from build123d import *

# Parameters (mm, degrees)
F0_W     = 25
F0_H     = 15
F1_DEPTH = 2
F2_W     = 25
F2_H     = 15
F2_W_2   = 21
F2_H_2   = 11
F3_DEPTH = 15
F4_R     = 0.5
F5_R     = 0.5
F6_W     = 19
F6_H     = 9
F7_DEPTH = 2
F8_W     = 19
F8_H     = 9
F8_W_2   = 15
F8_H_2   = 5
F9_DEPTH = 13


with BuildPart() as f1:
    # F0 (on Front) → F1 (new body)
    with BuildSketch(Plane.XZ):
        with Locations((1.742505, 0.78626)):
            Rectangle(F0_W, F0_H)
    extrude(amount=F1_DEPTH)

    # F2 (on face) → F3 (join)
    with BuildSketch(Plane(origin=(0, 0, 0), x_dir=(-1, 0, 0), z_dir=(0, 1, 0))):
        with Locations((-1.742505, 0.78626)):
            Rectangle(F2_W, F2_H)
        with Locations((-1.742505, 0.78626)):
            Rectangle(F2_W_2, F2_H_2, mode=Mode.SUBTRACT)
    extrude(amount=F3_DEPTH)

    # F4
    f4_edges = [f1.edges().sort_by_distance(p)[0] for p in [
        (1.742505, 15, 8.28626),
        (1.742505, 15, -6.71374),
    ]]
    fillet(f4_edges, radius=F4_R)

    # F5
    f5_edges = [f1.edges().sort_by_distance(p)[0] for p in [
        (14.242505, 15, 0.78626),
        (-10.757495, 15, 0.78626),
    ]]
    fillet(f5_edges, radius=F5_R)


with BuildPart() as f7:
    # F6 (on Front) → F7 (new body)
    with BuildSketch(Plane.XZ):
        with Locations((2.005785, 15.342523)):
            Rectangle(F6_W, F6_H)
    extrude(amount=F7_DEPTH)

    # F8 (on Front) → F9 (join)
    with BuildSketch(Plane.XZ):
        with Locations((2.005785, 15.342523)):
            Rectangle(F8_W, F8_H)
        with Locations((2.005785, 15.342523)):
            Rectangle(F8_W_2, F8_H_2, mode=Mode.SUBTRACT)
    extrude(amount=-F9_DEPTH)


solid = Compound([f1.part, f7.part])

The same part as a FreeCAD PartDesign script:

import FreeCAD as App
import Part
import Sketcher

V = App.Vector


def edges_at(feature, points):
    """Names of the edges that pass closest to the given points."""
    edges = feature.Shape.Edges
    near = lambda p: min(range(len(edges)), key=lambda i: edges[i].distToShape(Part.Vertex(*p))[0])
    return sorted({f"Edge{near(p) + 1}" for p in points})


def add_polygon(sketch, points):
    """Adds a closed chain of lines whose ends are joined by coincident constraints."""
    first, n = sketch.GeometryCount, len(points)
    for a, b in zip(points, points[1:] + points[:1]):
        sketch.addGeometry(Part.LineSegment(App.Vector(*a, 0), App.Vector(*b, 0)), False)
    for i in range(n):
        sketch.addConstraint(Sketcher.Constraint("Coincident", first + i, 2, first + (i + 1) % n, 1))

doc = App.newDocument("Part")
params = doc.addObject("Spreadsheet::Sheet", "Params")
for row, (alias, value) in enumerate([
    ("sketch1_width", "25 mm"),
    ("sketch1_height", "15 mm"),
    ("pad1_length", "2 mm"),
    ("sketch2_width", "25 mm"),
    ("sketch2_width2", "21 mm"),
    ("sketch2_height", "15 mm"),
    ("sketch2_height2", "11 mm"),
    ("pad2_length", "15 mm"),
    ("fillet_radius", "0.5 mm"),
    ("fillet2_radius", "0.5 mm"),
    ("sketch3_width", "19 mm"),
    ("sketch3_height", "9 mm"),
    ("pad3_length", "2 mm"),
    ("sketch4_width", "19 mm"),
    ("sketch4_width2", "15 mm"),
    ("sketch4_height", "9 mm"),
    ("sketch4_height2", "5 mm"),
    ("pad4_length", "13 mm"),
], start=1):
    params.set(f"A{row}", alias)
    params.set(f"B{row}", "=" + value)
    params.setAlias(f"B{row}", alias)

body = doc.addObject("PartDesign::Body", "Body")

# Sketch on XZ plane
sketch1 = body.newObject("Sketcher::SketchObject", "Sketch")
sketch1.AttachmentSupport = (doc.getObject("XZ_Plane"), [""])
sketch1.MapMode = "FlatFace"
add_polygon(sketch1, [(-11, 8), (-11, -7), (14, -7), (14, 8)])  # lines 0-3
sketch1.addConstraint([
    Sketcher.Constraint("Vertical", 0),
    Sketcher.Constraint("Horizontal", 1),
    Sketcher.Constraint("Vertical", 2),
    Sketcher.Constraint("Horizontal", 3),
    Sketcher.Constraint("DistanceX", 1, 1, 1, 2, 25.0),
    Sketcher.Constraint("DistanceY", 0, 2, 0, 1, 15.0),
    Sketcher.Constraint("DistanceY", 0, 2, -1, 1, 6.71374),
    Sketcher.Constraint("DistanceX", 0, 2, -1, 1, 10.757495),
])
sketch1.setExpression("Constraints[8]", "Params.sketch1_width")
sketch1.setExpression("Constraints[9]", "Params.sketch1_height")
pad1 = body.newObject("PartDesign::Pad", "Pad")
pad1.Profile = sketch1
pad1.setExpression("Length", "Params.pad1_length")

# Sketch on XZ plane
sketch2 = body.newObject("Sketcher::SketchObject", "Sketch001")
sketch2.AttachmentSupport = (doc.getObject("XZ_Plane"), [""])
sketch2.MapMode = "FlatFace"
add_polygon(sketch2, [(14, 8), (14, -7), (-11, -7), (-11, 8)])  # lines 0-3
add_polygon(sketch2, [(-9, -5), (12, -5), (12, 6), (-9, 6)])  # lines 4-7
sketch2.addConstraint([
    Sketcher.Constraint("Vertical", 0),
    Sketcher.Constraint("Horizontal", 1),
    Sketcher.Constraint("Vertical", 2),
    Sketcher.Constraint("Horizontal", 3),
    Sketcher.Constraint("Horizontal", 4),
    Sketcher.Constraint("Vertical", 5),
    Sketcher.Constraint("Horizontal", 6),
    Sketcher.Constraint("Vertical", 7),
    Sketcher.Constraint("DistanceX", 1, 2, 1, 1, 25.0),
    Sketcher.Constraint("DistanceX", 4, 1, 4, 2, 21.0),
    Sketcher.Constraint("DistanceY", 0, 2, 0, 1, 15.0),
    Sketcher.Constraint("DistanceY", 5, 1, 5, 2, 11.0),
    Sketcher.Constraint("DistanceX", 4, 2, 0, 2, 2.0),
    Sketcher.Constraint("DistanceY", 0, 2, 4, 2, 2.0),
    Sketcher.Constraint("DistanceY", 0, 2, -1, 1, 6.71374),
    Sketcher.Constraint("DistanceX", -1, 1, 0, 2, 14.242505),
])
sketch2.setExpression("Constraints[16]", "Params.sketch2_width")
sketch2.setExpression("Constraints[17]", "Params.sketch2_width2")
sketch2.setExpression("Constraints[18]", "Params.sketch2_height")
sketch2.setExpression("Constraints[19]", "Params.sketch2_height2")
pad2 = body.newObject("PartDesign::Pad", "Pad001")
pad2.Profile = sketch2
pad2.setExpression("Length", "Params.pad2_length")
pad2.Reversed = True
doc.recompute()

fillet = body.newObject("PartDesign::Fillet", "Fillet")
fillet.Base = (pad2, edges_at(pad2, [(1.743, 15, 8.286), (1.743, 15, -6.714)]))
fillet.setExpression("Radius", "Params.fillet_radius")
doc.recompute()

fillet2 = body.newObject("PartDesign::Fillet", "Fillet001")
fillet2.Base = (fillet, edges_at(fillet, [(14.243, 15, 0.786), (-10.757, 15, 0.786)]))
fillet2.setExpression("Radius", "Params.fillet2_radius")
body2 = doc.addObject("PartDesign::Body", "Body001")

# Sketch on XZ plane
sketch3 = body2.newObject("Sketcher::SketchObject", "Sketch002")
sketch3.AttachmentSupport = (doc.getObject("XZ_Plane001"), [""])
sketch3.MapMode = "FlatFace"
add_polygon(sketch3, [(-7, 20), (-7, 11), (12, 11), (12, 20)])  # lines 0-3
sketch3.addConstraint([
    Sketcher.Constraint("Vertical", 0),
    Sketcher.Constraint("Horizontal", 1),
    Sketcher.Constraint("Vertical", 2),
    Sketcher.Constraint("Horizontal", 3),
    Sketcher.Constraint("DistanceX", 1, 1, 1, 2, 19.0),
    Sketcher.Constraint("DistanceY", 0, 2, 0, 1, 9.0),
    Sketcher.Constraint("DistanceX", 0, 2, -1, 1, 7.494215),
    Sketcher.Constraint("DistanceY", -1, 1, 0, 2, 10.842523),
])
sketch3.setExpression("Constraints[8]", "Params.sketch3_width")
sketch3.setExpression("Constraints[9]", "Params.sketch3_height")
pad3 = body2.newObject("PartDesign::Pad", "Pad002")
pad3.Profile = sketch3
pad3.setExpression("Length", "Params.pad3_length")

# Sketch on XZ plane
sketch4 = body2.newObject("Sketcher::SketchObject", "Sketch003")
sketch4.AttachmentSupport = (doc.getObject("XZ_Plane001"), [""])
sketch4.MapMode = "FlatFace"
add_polygon(sketch4, [(-7, 20), (-7, 11), (12, 11), (12, 20)])  # lines 0-3
add_polygon(sketch4, [(10, 13), (-5, 13), (-5, 18), (10, 18)])  # lines 4-7
sketch4.addConstraint([
    Sketcher.Constraint("Vertical", 0),
    Sketcher.Constraint("Horizontal", 1),
    Sketcher.Constraint("Vertical", 2),
    Sketcher.Constraint("Horizontal", 3),
    Sketcher.Constraint("Horizontal", 4),
    Sketcher.Constraint("Vertical", 5),
    Sketcher.Constraint("Horizontal", 6),
    Sketcher.Constraint("Vertical", 7),
    Sketcher.Constraint("DistanceX", 1, 1, 1, 2, 19.0),
    Sketcher.Constraint("DistanceX", 4, 2, 4, 1, 15.0),
    Sketcher.Constraint("DistanceY", 0, 2, 0, 1, 9.0),
    Sketcher.Constraint("DistanceY", 5, 1, 5, 2, 5.0),
    Sketcher.Constraint("DistanceX", 0, 2, 4, 2, 2.0),
    Sketcher.Constraint("DistanceY", 0, 2, 4, 2, 2.0),
    Sketcher.Constraint("DistanceX", 0, 2, -1, 1, 7.494215),
    Sketcher.Constraint("DistanceY", -1, 1, 0, 2, 10.842523),
])
sketch4.setExpression("Constraints[16]", "Params.sketch4_width")
sketch4.setExpression("Constraints[17]", "Params.sketch4_width2")
sketch4.setExpression("Constraints[18]", "Params.sketch4_height")
sketch4.setExpression("Constraints[19]", "Params.sketch4_height2")
pad4 = body2.newObject("PartDesign::Pad", "Pad003")
pad4.Profile = sketch4
pad4.setExpression("Length", "Params.pad4_length")
pad4.Reversed = True

doc.recompute()
